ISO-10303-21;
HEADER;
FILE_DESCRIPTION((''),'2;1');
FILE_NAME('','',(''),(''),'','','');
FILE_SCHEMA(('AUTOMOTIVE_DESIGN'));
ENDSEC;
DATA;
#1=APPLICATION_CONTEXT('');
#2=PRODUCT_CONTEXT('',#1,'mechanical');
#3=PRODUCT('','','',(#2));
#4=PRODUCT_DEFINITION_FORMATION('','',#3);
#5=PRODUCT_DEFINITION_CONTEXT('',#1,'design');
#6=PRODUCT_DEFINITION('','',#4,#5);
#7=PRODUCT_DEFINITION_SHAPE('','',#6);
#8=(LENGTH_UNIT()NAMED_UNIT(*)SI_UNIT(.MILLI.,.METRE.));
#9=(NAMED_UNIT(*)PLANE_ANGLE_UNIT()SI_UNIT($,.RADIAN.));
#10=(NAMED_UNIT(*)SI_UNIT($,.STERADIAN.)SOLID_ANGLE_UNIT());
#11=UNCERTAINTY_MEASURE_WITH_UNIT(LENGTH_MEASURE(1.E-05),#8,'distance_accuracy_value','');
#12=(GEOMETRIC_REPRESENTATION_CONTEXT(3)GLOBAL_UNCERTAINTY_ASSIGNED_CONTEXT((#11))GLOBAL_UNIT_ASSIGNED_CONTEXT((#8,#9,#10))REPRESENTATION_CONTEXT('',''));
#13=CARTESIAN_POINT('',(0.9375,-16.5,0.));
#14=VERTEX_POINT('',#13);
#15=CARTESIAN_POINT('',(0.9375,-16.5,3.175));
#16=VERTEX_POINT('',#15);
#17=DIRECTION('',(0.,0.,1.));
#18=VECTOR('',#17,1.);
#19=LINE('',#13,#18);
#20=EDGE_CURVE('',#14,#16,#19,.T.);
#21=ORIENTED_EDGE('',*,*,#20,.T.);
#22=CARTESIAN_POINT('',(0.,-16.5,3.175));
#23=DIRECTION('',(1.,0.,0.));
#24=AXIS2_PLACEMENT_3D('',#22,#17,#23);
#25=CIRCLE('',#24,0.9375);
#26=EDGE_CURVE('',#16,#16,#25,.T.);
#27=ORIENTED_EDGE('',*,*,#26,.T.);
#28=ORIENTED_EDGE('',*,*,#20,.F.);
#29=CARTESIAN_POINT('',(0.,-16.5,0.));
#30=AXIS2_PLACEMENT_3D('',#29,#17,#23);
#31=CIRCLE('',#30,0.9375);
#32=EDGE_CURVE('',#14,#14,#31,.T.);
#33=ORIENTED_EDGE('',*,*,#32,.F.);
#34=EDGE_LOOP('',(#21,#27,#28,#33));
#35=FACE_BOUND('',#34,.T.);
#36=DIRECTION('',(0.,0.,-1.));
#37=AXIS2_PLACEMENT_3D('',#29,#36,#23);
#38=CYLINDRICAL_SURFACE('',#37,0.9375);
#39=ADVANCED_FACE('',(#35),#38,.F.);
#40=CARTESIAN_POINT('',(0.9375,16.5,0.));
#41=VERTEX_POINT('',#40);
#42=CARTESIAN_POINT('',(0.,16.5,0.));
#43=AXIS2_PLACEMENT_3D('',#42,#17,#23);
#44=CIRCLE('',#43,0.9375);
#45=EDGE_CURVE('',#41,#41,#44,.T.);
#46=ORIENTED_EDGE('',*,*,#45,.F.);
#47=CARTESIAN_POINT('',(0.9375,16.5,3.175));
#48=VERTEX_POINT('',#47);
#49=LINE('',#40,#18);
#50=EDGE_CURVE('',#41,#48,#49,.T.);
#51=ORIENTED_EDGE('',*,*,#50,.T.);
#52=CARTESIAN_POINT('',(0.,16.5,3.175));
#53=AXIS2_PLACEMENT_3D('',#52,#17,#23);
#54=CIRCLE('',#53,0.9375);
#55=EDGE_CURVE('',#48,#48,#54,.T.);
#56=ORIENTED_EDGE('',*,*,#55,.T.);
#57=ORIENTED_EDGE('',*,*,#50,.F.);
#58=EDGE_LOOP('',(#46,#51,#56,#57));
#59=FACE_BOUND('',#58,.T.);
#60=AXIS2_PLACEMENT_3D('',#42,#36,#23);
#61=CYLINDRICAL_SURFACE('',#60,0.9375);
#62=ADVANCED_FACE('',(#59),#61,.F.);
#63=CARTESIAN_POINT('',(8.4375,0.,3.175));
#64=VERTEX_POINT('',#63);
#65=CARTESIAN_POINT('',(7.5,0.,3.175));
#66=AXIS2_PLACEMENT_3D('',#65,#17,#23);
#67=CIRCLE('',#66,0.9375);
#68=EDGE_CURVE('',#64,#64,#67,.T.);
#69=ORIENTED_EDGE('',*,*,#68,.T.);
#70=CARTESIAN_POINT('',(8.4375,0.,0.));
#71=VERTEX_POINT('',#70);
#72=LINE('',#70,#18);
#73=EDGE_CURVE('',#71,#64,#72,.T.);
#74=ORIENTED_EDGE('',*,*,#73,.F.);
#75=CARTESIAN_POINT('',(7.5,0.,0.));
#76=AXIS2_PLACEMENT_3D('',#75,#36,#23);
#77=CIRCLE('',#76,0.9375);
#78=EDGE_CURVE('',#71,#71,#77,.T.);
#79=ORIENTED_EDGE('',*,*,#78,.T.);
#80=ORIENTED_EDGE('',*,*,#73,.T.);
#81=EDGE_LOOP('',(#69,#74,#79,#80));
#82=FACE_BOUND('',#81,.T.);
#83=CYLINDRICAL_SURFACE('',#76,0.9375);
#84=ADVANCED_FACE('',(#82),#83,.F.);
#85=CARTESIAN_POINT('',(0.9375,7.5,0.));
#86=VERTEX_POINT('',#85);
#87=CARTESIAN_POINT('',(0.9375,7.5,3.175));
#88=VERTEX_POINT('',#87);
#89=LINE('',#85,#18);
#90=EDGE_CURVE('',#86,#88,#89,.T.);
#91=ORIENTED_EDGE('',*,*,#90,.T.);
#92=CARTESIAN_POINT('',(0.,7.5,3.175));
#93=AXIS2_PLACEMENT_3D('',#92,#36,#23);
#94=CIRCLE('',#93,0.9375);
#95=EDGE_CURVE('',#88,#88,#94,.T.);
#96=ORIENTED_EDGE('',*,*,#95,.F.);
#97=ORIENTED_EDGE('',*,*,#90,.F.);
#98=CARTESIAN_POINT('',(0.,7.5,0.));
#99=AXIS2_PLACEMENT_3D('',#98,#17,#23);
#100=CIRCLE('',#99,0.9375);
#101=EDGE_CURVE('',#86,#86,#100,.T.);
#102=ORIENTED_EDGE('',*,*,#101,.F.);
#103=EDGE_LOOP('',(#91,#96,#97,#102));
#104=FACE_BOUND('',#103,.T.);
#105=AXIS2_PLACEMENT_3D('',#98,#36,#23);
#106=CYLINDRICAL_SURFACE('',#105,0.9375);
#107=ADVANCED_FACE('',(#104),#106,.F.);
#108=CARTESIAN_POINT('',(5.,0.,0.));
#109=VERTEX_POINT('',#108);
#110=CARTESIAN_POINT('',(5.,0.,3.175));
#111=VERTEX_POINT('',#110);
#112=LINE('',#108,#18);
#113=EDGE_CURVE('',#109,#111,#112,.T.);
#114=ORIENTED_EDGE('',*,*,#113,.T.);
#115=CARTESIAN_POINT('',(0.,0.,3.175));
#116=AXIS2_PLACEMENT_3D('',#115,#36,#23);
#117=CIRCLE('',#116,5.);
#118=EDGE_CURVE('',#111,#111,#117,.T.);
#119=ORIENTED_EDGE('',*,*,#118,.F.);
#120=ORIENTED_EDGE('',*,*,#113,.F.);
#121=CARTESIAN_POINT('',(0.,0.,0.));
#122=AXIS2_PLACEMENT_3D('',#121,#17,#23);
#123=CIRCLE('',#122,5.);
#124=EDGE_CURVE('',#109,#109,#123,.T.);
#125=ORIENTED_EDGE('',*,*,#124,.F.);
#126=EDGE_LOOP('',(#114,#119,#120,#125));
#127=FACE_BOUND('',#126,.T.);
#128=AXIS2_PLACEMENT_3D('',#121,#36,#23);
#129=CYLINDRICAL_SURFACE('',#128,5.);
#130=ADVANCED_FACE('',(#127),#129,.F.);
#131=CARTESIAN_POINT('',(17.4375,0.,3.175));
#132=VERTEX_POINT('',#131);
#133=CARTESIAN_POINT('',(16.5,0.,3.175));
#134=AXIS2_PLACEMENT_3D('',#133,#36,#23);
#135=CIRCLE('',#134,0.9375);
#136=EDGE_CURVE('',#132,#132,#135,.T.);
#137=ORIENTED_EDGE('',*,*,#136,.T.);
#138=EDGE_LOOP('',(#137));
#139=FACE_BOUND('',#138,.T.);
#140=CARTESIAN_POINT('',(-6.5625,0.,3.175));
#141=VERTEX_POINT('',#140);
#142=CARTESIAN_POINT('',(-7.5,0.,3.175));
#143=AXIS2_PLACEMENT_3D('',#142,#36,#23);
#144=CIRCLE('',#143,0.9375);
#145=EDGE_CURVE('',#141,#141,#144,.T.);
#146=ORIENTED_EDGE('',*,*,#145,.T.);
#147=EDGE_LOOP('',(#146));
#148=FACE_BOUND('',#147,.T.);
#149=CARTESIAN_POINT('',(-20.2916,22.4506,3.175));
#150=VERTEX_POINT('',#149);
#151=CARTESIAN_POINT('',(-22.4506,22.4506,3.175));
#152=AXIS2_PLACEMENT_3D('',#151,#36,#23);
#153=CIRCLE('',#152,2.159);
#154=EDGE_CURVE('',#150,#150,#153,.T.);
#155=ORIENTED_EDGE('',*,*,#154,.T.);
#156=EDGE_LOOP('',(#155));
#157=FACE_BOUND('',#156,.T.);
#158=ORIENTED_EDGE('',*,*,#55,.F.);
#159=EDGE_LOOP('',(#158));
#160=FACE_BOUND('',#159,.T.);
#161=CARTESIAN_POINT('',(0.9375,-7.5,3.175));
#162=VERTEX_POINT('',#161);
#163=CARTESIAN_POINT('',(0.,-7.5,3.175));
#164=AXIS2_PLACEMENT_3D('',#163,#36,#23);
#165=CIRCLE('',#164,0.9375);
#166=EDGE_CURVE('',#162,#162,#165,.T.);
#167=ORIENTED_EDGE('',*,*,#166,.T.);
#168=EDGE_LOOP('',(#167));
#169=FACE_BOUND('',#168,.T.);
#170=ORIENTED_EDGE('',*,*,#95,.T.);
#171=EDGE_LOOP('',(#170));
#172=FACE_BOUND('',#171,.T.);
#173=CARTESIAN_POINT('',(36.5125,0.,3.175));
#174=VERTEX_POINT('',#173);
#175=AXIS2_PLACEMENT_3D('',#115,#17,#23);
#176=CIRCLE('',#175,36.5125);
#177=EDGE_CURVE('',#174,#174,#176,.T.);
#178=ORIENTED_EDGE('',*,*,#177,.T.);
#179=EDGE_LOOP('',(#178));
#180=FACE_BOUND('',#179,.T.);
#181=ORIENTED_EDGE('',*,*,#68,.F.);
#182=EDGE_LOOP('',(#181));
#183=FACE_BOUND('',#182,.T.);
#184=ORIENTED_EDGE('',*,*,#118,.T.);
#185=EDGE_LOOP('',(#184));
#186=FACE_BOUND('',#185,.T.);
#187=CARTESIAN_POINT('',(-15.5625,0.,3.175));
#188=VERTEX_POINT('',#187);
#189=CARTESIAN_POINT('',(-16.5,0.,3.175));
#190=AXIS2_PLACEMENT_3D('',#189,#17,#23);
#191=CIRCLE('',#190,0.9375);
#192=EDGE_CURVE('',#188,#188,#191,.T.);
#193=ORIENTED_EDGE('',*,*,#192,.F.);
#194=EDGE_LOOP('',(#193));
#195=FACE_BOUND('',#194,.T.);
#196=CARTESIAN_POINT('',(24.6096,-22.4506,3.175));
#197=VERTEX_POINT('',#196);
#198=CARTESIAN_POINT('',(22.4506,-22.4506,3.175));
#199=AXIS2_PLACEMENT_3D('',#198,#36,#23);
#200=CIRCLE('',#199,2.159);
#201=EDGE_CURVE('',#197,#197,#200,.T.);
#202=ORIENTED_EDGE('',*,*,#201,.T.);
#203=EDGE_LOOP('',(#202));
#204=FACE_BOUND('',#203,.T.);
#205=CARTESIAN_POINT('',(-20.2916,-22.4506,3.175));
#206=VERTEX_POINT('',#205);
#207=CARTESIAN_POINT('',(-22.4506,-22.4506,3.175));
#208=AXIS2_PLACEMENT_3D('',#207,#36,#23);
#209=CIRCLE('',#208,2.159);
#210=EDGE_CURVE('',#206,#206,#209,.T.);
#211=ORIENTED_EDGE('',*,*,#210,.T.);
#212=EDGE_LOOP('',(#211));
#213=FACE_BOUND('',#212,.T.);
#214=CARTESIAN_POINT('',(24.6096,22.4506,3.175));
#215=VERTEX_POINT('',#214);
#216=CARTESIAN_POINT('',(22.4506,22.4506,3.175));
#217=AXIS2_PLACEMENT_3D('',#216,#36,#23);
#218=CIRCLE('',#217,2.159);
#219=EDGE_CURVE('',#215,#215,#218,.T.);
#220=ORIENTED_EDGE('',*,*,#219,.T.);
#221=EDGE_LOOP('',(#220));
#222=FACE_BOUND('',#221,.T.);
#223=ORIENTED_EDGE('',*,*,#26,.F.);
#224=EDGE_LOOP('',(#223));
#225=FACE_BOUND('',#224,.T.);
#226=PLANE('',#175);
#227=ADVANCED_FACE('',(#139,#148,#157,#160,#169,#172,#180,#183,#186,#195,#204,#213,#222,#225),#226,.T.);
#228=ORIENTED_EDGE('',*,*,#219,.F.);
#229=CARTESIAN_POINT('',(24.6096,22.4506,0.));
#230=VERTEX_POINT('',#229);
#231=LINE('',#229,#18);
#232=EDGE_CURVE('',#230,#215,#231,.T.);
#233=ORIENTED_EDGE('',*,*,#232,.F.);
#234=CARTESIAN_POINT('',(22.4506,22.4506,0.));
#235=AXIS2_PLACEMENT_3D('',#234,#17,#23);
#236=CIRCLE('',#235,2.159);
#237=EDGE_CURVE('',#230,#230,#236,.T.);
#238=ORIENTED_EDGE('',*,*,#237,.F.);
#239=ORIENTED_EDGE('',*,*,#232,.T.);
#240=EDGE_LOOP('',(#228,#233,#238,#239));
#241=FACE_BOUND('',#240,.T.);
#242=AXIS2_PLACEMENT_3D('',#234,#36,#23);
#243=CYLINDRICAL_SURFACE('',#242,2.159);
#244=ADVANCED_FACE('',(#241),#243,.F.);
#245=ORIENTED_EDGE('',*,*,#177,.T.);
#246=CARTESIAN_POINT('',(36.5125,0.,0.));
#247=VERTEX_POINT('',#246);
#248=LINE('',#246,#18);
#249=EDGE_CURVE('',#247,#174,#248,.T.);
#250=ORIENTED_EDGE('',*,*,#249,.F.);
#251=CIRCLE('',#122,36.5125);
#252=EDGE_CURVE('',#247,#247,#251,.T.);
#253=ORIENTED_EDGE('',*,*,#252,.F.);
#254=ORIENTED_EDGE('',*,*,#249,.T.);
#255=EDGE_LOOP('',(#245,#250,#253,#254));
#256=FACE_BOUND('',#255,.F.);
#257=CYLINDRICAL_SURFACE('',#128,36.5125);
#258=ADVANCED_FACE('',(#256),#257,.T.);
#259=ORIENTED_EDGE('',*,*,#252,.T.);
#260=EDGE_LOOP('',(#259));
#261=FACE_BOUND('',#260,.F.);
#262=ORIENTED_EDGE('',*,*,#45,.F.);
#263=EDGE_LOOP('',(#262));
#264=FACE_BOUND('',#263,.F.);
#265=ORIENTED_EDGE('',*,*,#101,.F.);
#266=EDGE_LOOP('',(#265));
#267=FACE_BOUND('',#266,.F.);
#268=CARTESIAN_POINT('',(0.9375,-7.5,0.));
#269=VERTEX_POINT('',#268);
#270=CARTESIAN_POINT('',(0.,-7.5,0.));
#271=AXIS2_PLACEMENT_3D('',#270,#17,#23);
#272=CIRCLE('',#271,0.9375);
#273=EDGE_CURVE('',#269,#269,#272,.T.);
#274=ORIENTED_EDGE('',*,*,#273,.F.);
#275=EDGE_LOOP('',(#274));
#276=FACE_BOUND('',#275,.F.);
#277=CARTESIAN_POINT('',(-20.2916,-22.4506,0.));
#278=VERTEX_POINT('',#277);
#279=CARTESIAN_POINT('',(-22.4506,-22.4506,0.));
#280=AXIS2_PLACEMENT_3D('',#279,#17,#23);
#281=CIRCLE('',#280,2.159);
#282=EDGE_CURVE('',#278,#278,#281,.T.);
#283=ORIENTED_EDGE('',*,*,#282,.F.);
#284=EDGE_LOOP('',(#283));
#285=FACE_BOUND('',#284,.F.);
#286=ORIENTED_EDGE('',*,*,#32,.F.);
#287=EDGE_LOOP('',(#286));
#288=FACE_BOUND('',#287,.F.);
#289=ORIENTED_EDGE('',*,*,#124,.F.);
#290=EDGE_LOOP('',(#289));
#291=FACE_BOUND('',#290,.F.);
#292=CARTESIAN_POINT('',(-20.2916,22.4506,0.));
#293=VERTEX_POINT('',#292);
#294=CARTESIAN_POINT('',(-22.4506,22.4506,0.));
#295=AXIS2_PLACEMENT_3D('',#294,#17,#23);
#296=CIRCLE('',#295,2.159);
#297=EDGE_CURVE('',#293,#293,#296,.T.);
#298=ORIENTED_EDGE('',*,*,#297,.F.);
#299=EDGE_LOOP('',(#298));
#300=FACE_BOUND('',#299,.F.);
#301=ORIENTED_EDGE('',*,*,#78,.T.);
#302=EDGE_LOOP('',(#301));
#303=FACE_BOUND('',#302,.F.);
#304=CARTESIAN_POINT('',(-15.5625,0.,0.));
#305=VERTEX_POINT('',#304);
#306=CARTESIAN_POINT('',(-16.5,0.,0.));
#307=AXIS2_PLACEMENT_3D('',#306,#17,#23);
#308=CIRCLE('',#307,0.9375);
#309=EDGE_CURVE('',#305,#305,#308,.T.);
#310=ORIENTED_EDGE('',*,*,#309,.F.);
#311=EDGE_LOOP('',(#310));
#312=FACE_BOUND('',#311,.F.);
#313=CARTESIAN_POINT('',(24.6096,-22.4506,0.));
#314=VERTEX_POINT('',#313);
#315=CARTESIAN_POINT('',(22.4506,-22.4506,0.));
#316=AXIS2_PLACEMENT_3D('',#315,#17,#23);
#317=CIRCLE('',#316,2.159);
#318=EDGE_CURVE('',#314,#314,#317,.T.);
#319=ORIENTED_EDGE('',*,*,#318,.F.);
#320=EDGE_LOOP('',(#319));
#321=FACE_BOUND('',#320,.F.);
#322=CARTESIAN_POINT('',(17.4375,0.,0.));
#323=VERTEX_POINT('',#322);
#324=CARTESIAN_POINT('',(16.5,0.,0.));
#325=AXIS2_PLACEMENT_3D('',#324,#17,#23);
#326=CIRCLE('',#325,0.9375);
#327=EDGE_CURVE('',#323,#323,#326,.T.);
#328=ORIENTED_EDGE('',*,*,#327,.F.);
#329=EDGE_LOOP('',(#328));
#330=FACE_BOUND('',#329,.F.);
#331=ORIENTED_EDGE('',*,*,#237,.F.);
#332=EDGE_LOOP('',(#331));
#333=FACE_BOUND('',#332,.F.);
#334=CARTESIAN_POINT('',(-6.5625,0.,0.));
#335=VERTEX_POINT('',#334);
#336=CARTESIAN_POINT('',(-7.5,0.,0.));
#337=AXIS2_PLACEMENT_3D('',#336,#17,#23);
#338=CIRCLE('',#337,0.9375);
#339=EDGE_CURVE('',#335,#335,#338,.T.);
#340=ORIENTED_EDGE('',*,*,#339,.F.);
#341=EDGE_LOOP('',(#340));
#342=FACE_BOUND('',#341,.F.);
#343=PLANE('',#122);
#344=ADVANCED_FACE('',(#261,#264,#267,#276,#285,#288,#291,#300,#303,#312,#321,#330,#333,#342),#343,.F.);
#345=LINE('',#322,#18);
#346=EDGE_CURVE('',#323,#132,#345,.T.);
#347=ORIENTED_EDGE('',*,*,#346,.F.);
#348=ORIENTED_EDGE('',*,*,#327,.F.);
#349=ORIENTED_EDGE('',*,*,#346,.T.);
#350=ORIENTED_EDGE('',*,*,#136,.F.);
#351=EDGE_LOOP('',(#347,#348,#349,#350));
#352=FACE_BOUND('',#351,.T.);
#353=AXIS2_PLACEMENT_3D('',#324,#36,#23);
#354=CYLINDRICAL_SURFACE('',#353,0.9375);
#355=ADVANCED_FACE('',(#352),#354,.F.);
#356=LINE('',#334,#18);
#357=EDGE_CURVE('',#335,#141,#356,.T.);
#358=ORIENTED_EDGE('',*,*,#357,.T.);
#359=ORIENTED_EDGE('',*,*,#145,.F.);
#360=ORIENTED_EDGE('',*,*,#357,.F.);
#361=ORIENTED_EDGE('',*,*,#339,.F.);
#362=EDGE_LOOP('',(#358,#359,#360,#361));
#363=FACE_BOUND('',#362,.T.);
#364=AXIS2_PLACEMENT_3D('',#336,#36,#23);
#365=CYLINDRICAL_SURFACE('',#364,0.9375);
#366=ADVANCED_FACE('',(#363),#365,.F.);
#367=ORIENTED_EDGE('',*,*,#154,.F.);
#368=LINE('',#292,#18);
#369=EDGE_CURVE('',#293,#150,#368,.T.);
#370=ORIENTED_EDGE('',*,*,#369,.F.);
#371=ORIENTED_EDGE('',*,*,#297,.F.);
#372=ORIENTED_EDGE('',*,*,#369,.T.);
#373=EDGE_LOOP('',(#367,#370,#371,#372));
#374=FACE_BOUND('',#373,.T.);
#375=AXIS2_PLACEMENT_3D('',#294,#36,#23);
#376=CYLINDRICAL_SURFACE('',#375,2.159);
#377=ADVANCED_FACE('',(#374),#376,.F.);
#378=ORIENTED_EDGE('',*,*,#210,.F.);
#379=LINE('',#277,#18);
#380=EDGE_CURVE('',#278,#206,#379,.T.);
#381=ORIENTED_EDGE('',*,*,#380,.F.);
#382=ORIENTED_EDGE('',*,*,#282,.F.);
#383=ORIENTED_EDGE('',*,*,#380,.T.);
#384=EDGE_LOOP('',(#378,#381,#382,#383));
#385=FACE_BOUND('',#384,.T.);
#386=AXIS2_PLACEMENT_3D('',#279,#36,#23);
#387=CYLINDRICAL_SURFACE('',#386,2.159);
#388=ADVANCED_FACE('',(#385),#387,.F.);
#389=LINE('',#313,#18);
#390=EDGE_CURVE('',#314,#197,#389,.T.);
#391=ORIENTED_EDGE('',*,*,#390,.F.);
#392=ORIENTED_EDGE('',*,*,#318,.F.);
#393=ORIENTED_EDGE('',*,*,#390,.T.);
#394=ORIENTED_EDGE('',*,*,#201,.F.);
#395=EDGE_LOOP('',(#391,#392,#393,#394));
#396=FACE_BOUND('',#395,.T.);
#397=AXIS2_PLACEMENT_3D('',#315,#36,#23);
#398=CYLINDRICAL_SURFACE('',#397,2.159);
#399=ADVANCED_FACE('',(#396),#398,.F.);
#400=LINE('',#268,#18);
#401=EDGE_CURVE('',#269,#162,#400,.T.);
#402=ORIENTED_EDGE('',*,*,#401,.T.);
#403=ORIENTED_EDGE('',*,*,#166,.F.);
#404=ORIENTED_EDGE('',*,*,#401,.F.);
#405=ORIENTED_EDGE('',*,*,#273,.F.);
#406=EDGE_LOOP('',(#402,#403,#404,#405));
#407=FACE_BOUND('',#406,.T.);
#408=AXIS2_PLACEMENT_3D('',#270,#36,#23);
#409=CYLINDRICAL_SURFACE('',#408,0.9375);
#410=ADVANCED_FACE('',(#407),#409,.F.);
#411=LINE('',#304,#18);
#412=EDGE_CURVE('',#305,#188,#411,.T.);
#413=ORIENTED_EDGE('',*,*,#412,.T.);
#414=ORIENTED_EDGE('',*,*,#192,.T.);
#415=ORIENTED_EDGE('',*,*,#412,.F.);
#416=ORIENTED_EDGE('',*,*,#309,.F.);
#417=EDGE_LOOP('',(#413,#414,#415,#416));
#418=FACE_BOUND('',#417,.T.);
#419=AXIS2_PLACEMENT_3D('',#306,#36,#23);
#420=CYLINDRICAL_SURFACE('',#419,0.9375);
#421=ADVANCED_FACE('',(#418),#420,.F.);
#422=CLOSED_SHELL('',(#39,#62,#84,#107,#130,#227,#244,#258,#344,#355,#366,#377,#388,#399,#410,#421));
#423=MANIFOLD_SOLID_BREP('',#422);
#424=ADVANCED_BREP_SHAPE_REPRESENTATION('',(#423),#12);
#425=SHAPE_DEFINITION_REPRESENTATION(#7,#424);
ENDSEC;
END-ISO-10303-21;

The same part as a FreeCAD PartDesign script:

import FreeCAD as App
import Part
import Sketcher
from FreeCAD import Vector
Q = App.Units.Quantity

doc = App.newDocument("Part")
body = doc.addObject("PartDesign::Body", "Body")

# Sketch on XY plane
sketch1 = body.newObject("Sketcher::SketchObject", "Sketch")
sketch1.AttachmentSupport = (doc.getObject("XY_Plane"), [""])
sketch1.MapMode = "FlatFace"
sketch1.addGeometry([
    Part.Circle(Vector(0, 0, 0), Vector(0, 0, 1), 36.5),  # 0
    Part.Circle(Vector(7.5, 0, 0), Vector(0, 0, 1), 0.9),  # 1
    Part.Circle(Vector(16.5, 0, 0), Vector(0, 0, 1), 0.9),  # 2
    Part.Circle(Vector(22.5, 22.5, 0), Vector(0, 0, 1), 2.2),  # 3
    Part.Circle(Vector(22.5, -22.5, 0), Vector(0, 0, 1), 2.2),  # 4
    Part.Circle(Vector(0, -7.5, 0), Vector(0, 0, 1), 0.9),  # 5
    Part.Circle(Vector(0, 0, 0), Vector(0, 0, 1), 5),  # 6
    Part.Circle(Vector(0, 7.5, 0), Vector(0, 0, 1), 0.9),  # 7
    Part.Circle(Vector(-22.5, 22.5, 0), Vector(0, 0, 1), 2.2),  # 8
    Part.Circle(Vector(-22.5, -22.5, 0), Vector(0, 0, 1), 2.2),  # 9
    Part.Circle(Vector(0, 16.5, 0), Vector(0, 0, 1), 0.9),  # 10
    Part.Circle(Vector(0, -16.5, 0), Vector(0, 0, 1), 0.9),  # 11
    Part.Circle(Vector(-7.5, 0, 0), Vector(0, 0, 1), 0.9),  # 12
    Part.Circle(Vector(-16.5, 0, 0), Vector(0, 0, 1), 0.9),  # 13
], False)
sketch1.addConstraint([
    Sketcher.Constraint("Coincident", 0, 3, -1, 1),
    Sketcher.Constraint("Coincident", 6, 3, -1, 1),
    Sketcher.Constraint("Equal", 1, 2),
    Sketcher.Constraint("Equal", 3, 4),
    Sketcher.Constraint("Equal", 2, 5),
    Sketcher.Constraint("Equal", 5, 7),
    Sketcher.Constraint("Equal", 4, 8),
    Sketcher.Constraint("Equal", 8, 9),
    Sketcher.Constraint("Equal", 7, 10),
    Sketcher.Constraint("Equal", 10, 11),
    Sketcher.Constraint("Equal", 11, 12),
    Sketcher.Constraint("Equal", 12, 13),
    Sketcher.Constraint("Symmetric", 5, 3, 7, 3, -1, 1),
    Sketcher.Constraint("Symmetric", 4, 3, 8, 3, -1, 1),
    Sketcher.Constraint("Symmetric", 3, 3, 9, 3, -1, 1),
    Sketcher.Constraint("Symmetric", 10, 3, 11, 3, -1, 1),
    Sketcher.Constraint("Symmetric", 1, 3, 12, 3, -1, 1),
    Sketcher.Constraint("Symmetric", 2, 3, 13, 3, -1, 1),
    Sketcher.Constraint("Symmetric", 3, 3, 8, 3, -2),
    Sketcher.Constraint("PointOnObject", 1, 3, -1),
    Sketcher.Constraint("PointOnObject", 2, 3, -1),
    Sketcher.Constraint("PointOnObject", 5, 3, -2),
    Sketcher.Constraint("PointOnObject", 10, 3, -2),
    Sketcher.Constraint("Diameter", 3, Q("0.17 in")),
    Sketcher.Constraint("Diameter", 0, Q("2.875 in")),
    Sketcher.Constraint("Diameter", 6, Q("0.3937 in")),
    Sketcher.Constraint("Diameter", 1, 1.875),
    Sketcher.Constraint("DistanceY", 5, 3, 7, 3, 15.0),
    Sketcher.Constraint("DistanceX", 12, 3, 1, 3, 15.0),
    Sketcher.Constraint("DistanceX", -1, 1, 2, 3, Q("0.6496 in")),
    Sketcher.Constraint("DistanceY", -1, 1, 10, 3, Q("0.6496 in")),
    Sketcher.Constraint("DistanceX", 1, 3, 3, 3, Q("0.5886 in")),
    Sketcher.Constraint("DistanceY", 4, 3, 5, 3, Q("0.5886 in")),
])
pad1 = body.newObject("PartDesign::Pad", "Pad")
pad1.Profile = sketch1
pad1.Length = Q("0.125 in")

doc.recompute()
